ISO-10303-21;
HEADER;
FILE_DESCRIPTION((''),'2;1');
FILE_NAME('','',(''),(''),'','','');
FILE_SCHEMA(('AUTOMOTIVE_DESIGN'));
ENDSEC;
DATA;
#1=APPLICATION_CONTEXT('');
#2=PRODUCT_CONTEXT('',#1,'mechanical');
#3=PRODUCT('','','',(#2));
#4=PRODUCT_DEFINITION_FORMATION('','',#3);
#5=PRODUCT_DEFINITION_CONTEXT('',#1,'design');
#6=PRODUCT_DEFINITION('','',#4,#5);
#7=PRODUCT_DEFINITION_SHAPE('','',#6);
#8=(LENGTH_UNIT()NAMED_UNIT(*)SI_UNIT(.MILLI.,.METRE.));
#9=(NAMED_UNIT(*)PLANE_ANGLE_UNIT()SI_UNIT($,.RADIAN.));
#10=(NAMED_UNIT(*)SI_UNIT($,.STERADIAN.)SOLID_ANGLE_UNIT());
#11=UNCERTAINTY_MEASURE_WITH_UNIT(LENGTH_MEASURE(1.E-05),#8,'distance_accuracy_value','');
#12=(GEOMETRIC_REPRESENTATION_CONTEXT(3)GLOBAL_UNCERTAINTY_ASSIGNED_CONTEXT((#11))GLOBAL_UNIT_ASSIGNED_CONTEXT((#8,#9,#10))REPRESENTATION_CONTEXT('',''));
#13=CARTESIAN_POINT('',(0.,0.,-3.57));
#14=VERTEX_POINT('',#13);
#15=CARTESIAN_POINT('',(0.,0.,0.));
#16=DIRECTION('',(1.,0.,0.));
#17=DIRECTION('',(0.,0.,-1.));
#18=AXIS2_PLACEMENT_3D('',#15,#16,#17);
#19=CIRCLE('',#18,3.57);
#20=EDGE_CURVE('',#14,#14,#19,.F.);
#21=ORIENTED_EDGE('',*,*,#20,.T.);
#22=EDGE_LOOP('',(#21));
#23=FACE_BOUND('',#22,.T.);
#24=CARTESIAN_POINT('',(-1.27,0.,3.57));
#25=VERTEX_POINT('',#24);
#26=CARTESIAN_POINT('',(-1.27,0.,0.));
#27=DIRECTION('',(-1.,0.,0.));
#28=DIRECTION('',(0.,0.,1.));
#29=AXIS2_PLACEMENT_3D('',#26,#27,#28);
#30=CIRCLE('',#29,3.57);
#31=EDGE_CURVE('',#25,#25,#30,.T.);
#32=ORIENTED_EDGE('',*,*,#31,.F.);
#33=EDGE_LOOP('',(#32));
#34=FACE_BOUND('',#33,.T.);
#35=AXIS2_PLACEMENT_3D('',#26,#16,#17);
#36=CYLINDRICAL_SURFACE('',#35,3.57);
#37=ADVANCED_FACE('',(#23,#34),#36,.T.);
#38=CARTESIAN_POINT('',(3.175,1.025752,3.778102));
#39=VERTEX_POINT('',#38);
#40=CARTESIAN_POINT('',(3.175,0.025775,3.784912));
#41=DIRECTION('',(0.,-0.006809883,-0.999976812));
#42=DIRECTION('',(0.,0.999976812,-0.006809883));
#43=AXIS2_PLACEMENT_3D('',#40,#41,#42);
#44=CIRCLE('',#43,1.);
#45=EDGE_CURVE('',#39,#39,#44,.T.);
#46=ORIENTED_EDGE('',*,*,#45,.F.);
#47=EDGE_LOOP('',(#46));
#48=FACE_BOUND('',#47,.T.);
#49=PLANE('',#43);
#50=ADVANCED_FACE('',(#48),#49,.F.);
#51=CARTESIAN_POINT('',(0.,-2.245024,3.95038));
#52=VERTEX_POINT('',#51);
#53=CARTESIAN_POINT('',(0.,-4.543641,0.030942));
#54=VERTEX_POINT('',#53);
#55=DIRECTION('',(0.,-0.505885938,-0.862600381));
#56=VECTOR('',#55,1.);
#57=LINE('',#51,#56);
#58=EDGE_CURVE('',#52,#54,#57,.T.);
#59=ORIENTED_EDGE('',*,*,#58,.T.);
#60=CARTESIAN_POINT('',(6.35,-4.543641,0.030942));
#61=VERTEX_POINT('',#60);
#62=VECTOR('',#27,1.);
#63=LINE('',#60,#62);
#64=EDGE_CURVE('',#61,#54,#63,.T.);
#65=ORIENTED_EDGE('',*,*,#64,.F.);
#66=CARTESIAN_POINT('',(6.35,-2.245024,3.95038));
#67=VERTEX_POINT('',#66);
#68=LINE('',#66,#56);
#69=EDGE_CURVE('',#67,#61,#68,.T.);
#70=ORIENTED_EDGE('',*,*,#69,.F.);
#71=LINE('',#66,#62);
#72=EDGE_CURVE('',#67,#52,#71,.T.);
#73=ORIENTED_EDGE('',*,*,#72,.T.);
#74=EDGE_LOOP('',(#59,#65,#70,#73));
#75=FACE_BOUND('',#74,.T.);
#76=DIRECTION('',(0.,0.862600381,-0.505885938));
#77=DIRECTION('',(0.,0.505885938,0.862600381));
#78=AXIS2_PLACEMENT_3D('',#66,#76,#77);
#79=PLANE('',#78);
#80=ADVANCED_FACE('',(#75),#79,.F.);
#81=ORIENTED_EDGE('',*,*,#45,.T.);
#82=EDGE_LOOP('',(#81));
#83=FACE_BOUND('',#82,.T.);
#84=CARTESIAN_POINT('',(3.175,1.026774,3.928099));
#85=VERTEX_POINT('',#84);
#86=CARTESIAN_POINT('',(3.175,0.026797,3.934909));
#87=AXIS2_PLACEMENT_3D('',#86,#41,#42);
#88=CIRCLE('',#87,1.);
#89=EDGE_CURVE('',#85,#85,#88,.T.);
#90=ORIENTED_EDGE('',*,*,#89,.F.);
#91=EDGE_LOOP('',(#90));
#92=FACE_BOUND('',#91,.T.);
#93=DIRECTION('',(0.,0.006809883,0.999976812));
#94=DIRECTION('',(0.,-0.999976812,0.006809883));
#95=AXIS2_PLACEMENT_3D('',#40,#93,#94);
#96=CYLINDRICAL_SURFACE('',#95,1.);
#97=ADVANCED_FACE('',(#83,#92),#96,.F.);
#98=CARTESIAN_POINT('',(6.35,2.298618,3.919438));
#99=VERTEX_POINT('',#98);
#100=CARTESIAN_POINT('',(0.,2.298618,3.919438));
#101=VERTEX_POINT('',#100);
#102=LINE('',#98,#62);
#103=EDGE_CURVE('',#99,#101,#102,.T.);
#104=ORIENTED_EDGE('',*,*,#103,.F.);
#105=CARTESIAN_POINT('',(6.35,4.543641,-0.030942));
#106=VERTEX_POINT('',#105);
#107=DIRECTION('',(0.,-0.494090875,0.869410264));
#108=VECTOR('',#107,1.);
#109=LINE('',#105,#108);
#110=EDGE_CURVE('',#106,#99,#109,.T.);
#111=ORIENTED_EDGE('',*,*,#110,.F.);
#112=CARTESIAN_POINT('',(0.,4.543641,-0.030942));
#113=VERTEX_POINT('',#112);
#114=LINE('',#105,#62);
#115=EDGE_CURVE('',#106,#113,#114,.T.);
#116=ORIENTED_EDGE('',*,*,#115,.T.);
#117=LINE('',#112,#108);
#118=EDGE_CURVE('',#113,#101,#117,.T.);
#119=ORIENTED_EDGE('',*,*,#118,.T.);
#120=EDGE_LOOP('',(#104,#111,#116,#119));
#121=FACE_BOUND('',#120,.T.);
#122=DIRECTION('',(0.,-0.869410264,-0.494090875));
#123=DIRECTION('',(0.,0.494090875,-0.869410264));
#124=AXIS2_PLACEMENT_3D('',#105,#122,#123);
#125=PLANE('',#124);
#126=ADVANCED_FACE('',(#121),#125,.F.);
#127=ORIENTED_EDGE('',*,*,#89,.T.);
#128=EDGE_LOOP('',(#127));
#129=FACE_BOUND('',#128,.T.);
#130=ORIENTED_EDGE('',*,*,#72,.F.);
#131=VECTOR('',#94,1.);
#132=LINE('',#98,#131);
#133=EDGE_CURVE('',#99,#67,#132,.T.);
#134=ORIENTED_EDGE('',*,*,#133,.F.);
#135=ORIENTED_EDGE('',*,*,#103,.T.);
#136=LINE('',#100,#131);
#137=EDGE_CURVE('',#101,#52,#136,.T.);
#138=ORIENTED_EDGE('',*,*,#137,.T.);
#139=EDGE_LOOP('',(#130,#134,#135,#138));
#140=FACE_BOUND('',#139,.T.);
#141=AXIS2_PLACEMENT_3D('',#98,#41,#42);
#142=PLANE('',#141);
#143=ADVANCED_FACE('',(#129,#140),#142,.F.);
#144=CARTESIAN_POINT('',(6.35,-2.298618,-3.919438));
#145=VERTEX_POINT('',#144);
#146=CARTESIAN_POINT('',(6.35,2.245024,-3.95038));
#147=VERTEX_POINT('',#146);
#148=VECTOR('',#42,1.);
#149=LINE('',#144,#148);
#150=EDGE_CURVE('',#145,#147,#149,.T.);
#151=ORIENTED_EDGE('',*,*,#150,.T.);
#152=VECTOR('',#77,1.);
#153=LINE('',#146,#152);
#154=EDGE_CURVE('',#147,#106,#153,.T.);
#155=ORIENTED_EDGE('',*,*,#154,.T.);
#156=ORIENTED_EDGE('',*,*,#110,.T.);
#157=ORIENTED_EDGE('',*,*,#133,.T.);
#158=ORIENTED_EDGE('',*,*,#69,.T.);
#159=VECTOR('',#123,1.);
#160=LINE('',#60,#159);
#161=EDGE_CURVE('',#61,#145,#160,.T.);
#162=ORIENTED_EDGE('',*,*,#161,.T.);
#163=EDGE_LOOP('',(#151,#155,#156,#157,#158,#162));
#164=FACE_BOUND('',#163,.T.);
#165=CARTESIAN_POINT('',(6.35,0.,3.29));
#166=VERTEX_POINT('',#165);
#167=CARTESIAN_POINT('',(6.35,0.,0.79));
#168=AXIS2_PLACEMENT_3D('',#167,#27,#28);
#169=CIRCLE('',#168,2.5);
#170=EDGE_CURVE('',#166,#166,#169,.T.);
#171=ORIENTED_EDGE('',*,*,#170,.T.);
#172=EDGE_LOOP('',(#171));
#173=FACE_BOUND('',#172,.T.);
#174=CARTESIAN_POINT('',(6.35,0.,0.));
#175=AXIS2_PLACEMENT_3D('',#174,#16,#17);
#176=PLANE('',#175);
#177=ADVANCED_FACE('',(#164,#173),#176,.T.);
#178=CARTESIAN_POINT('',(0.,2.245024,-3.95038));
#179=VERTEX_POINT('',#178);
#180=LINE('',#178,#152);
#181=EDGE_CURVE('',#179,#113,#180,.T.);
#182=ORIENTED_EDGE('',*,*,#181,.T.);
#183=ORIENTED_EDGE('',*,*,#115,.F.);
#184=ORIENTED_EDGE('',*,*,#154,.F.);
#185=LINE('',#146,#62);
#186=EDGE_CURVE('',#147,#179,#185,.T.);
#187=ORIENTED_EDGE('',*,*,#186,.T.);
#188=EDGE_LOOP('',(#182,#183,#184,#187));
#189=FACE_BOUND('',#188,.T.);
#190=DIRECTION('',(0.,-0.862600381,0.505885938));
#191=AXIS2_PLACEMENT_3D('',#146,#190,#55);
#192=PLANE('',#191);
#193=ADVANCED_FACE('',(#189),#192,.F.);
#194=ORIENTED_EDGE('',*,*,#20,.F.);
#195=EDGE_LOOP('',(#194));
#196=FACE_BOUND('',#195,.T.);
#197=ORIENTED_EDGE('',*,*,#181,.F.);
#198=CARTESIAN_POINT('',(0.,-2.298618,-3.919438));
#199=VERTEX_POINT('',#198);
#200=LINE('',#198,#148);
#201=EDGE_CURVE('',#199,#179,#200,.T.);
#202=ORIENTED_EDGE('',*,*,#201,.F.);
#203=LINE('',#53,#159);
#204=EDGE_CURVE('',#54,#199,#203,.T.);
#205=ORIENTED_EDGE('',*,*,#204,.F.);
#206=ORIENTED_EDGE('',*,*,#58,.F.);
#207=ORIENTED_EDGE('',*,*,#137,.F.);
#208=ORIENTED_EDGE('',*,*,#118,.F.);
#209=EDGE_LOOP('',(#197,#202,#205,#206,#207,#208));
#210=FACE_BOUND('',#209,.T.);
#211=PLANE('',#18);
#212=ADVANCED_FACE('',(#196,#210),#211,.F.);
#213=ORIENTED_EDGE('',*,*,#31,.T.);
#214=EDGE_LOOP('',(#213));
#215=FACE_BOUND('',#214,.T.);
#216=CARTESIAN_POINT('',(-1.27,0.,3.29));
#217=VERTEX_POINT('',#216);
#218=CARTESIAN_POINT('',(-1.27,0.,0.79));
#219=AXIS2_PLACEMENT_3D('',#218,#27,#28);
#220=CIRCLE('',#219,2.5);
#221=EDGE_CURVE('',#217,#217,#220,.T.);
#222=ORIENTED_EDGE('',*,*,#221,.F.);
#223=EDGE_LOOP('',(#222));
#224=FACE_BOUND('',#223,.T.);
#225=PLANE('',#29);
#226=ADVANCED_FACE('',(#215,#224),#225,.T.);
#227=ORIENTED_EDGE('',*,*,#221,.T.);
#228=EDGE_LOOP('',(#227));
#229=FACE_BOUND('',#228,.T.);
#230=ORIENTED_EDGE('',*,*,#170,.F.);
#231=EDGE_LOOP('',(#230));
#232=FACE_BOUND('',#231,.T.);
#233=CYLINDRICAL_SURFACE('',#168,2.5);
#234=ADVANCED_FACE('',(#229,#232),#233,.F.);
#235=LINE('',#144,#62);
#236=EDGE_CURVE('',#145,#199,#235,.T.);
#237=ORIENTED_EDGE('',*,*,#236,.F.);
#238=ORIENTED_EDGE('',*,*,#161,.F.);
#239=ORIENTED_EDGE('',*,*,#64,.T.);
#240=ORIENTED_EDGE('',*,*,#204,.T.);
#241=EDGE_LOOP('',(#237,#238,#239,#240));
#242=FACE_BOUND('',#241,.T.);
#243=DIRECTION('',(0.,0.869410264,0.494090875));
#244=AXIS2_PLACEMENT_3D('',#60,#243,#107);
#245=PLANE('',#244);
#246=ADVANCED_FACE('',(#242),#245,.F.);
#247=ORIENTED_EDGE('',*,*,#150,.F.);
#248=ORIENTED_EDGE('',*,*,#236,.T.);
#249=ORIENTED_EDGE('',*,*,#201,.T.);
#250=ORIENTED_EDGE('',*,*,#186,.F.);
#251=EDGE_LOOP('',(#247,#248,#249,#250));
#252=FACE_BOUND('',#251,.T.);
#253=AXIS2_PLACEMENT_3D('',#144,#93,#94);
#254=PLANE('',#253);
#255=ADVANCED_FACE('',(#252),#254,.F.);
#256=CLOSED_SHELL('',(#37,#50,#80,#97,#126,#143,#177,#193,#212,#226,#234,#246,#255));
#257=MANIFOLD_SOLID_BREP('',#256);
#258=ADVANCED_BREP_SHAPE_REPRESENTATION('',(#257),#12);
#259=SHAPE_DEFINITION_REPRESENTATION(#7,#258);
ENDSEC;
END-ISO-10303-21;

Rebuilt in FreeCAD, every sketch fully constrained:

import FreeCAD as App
import Part
import Sketcher
from FreeCAD import Vector


def add_polygon(sketch, points):
    """Adds a closed chain of lines whose ends are joined by coincident constraints."""
    first, n = sketch.GeometryCount, len(points)
    for a, b in zip(points, points[1:] + points[:1]):
        sketch.addGeometry(Part.LineSegment(App.Vector(*a, 0), App.Vector(*b, 0)), False)
    for i in range(n):
        sketch.addConstraint(Sketcher.Constraint("Coincident", first + i, 2, first + (i + 1) % n, 1))

doc = App.newDocument("Part")
body = doc.addObject("PartDesign::Body", "Body")

# Sketch on YZ plane
sketch1 = body.newObject("Sketcher::SketchObject", "Sketch")
sketch1.AttachmentSupport = (doc.getObject("YZ_Plane"), [""])
sketch1.MapMode = "FlatFace"
add_polygon(sketch1, [(-2.3, -3.9), (2.2, -4), (4.5, 0), (2.3, 3.9), (-2.2, 4), (-4.5, 0)])  # lines 0-5
sketch1.addConstraint(Sketcher.Constraint("Symmetric", 0, 2, 3, 2, -1, 1))
sketch1.addConstraint(Sketcher.Constraint("Symmetric", 1, 2, 4, 2, -1, 1))
sketch1.addConstraint(Sketcher.Constraint("Symmetric", 2, 2, 5, 2, -1, 1))
sketch1.addConstraint(Sketcher.Constraint("Equal", 0, 1))
sketch1.addConstraint(Sketcher.Constraint("Equal", 1, 2))
sketch1.addConstraint(Sketcher.Constraint("DistanceY", 0, 2, -1, 1, 3.95038))
sketch1.addConstraint(Sketcher.Constraint("DistanceX", -1, 1, 1, 2, 4.543641))
sketch1.addConstraint(Sketcher.Constraint("DistanceY", 1, 2, 2, 2, 3.95038))
sketch1.addConstraint(Sketcher.Constraint("DistanceX", 3, 2, 2, 2, 4.543641))
pad1 = body.newObject("PartDesign::Pad", "Pad")
pad1.Profile = sketch1
pad1.Length = 6.35

# Sketch on YZ plane
sketch2 = body.newObject("Sketcher::SketchObject", "Sketch001")
sketch2.AttachmentSupport = (doc.getObject("YZ_Plane"), [""])
sketch2.MapMode = "FlatFace"
sketch2.addGeometry(Part.Circle(Vector(0, 0, 0), Vector(0, 0, 1), 3.6), False)
sketch2.addConstraint(Sketcher.Constraint("Coincident", 0, 3, -1, 1))
sketch2.addConstraint(Sketcher.Constraint("Diameter", 0, 7.14))
pad2 = body.newObject("PartDesign::Pad", "Pad001")
pad2.Profile = sketch2
pad2.Length = 1.27
pad2.Reversed = True

# Sketch on YZ plane
sketch3 = body.newObject("Sketcher::SketchObject", "Sketch002")
sketch3.AttachmentSupport = (doc.getObject("YZ_Plane"), [""])
sketch3.MapMode = "FlatFace"
sketch3.AttachmentOffset = App.Placement(Vector(0, 0, -1.27), App.Rotation())
sketch3.addGeometry(Part.Circle(Vector(0, 0.8, 0), Vector(0, 0, 1), 2.5), False)
sketch3.addConstraint(Sketcher.Constraint("PointOnObject", 0, 3, -2))
sketch3.addConstraint(Sketcher.Constraint("Diameter", 0, 5.0))
sketch3.addConstraint(Sketcher.Constraint("DistanceY", -1, 1, 0, 3, 0.79))
pocket1 = body.newObject("PartDesign::Pocket", "Pocket")
pocket1.Profile = sketch3
pocket1.Type = "ThroughAll"
pocket1.Reversed = True

# Sketch on an angled plane
sketch4 = body.newObject("Sketcher::SketchObject", "Sketch003")
sketch4.Placement = App.Placement(Vector(0, 0.026797, 3.934909), App.Rotation(Vector(1, 0, 0), Vector(0, -0.999976812, 0.006809883), Vector(0, -0.006809883, -0.999976812), "ZXY"))
sketch4.addGeometry(Part.Circle(Vector(3.2, 0, 0), Vector(0, 0, 1), 1), False)
sketch4.addConstraint(Sketcher.Constraint("PointOnObject", 0, 3, -1))
sketch4.addConstraint(Sketcher.Constraint("Diameter", 0, 2.0))
sketch4.addConstraint(Sketcher.Constraint("DistanceX", -1, 1, 0, 3, 3.175))
pocket2 = body.newObject("PartDesign::Pocket", "Pocket001")
pocket2.Profile = sketch4
pocket2.Length = 0.15
pocket2.Reversed = True

doc.recompute()
